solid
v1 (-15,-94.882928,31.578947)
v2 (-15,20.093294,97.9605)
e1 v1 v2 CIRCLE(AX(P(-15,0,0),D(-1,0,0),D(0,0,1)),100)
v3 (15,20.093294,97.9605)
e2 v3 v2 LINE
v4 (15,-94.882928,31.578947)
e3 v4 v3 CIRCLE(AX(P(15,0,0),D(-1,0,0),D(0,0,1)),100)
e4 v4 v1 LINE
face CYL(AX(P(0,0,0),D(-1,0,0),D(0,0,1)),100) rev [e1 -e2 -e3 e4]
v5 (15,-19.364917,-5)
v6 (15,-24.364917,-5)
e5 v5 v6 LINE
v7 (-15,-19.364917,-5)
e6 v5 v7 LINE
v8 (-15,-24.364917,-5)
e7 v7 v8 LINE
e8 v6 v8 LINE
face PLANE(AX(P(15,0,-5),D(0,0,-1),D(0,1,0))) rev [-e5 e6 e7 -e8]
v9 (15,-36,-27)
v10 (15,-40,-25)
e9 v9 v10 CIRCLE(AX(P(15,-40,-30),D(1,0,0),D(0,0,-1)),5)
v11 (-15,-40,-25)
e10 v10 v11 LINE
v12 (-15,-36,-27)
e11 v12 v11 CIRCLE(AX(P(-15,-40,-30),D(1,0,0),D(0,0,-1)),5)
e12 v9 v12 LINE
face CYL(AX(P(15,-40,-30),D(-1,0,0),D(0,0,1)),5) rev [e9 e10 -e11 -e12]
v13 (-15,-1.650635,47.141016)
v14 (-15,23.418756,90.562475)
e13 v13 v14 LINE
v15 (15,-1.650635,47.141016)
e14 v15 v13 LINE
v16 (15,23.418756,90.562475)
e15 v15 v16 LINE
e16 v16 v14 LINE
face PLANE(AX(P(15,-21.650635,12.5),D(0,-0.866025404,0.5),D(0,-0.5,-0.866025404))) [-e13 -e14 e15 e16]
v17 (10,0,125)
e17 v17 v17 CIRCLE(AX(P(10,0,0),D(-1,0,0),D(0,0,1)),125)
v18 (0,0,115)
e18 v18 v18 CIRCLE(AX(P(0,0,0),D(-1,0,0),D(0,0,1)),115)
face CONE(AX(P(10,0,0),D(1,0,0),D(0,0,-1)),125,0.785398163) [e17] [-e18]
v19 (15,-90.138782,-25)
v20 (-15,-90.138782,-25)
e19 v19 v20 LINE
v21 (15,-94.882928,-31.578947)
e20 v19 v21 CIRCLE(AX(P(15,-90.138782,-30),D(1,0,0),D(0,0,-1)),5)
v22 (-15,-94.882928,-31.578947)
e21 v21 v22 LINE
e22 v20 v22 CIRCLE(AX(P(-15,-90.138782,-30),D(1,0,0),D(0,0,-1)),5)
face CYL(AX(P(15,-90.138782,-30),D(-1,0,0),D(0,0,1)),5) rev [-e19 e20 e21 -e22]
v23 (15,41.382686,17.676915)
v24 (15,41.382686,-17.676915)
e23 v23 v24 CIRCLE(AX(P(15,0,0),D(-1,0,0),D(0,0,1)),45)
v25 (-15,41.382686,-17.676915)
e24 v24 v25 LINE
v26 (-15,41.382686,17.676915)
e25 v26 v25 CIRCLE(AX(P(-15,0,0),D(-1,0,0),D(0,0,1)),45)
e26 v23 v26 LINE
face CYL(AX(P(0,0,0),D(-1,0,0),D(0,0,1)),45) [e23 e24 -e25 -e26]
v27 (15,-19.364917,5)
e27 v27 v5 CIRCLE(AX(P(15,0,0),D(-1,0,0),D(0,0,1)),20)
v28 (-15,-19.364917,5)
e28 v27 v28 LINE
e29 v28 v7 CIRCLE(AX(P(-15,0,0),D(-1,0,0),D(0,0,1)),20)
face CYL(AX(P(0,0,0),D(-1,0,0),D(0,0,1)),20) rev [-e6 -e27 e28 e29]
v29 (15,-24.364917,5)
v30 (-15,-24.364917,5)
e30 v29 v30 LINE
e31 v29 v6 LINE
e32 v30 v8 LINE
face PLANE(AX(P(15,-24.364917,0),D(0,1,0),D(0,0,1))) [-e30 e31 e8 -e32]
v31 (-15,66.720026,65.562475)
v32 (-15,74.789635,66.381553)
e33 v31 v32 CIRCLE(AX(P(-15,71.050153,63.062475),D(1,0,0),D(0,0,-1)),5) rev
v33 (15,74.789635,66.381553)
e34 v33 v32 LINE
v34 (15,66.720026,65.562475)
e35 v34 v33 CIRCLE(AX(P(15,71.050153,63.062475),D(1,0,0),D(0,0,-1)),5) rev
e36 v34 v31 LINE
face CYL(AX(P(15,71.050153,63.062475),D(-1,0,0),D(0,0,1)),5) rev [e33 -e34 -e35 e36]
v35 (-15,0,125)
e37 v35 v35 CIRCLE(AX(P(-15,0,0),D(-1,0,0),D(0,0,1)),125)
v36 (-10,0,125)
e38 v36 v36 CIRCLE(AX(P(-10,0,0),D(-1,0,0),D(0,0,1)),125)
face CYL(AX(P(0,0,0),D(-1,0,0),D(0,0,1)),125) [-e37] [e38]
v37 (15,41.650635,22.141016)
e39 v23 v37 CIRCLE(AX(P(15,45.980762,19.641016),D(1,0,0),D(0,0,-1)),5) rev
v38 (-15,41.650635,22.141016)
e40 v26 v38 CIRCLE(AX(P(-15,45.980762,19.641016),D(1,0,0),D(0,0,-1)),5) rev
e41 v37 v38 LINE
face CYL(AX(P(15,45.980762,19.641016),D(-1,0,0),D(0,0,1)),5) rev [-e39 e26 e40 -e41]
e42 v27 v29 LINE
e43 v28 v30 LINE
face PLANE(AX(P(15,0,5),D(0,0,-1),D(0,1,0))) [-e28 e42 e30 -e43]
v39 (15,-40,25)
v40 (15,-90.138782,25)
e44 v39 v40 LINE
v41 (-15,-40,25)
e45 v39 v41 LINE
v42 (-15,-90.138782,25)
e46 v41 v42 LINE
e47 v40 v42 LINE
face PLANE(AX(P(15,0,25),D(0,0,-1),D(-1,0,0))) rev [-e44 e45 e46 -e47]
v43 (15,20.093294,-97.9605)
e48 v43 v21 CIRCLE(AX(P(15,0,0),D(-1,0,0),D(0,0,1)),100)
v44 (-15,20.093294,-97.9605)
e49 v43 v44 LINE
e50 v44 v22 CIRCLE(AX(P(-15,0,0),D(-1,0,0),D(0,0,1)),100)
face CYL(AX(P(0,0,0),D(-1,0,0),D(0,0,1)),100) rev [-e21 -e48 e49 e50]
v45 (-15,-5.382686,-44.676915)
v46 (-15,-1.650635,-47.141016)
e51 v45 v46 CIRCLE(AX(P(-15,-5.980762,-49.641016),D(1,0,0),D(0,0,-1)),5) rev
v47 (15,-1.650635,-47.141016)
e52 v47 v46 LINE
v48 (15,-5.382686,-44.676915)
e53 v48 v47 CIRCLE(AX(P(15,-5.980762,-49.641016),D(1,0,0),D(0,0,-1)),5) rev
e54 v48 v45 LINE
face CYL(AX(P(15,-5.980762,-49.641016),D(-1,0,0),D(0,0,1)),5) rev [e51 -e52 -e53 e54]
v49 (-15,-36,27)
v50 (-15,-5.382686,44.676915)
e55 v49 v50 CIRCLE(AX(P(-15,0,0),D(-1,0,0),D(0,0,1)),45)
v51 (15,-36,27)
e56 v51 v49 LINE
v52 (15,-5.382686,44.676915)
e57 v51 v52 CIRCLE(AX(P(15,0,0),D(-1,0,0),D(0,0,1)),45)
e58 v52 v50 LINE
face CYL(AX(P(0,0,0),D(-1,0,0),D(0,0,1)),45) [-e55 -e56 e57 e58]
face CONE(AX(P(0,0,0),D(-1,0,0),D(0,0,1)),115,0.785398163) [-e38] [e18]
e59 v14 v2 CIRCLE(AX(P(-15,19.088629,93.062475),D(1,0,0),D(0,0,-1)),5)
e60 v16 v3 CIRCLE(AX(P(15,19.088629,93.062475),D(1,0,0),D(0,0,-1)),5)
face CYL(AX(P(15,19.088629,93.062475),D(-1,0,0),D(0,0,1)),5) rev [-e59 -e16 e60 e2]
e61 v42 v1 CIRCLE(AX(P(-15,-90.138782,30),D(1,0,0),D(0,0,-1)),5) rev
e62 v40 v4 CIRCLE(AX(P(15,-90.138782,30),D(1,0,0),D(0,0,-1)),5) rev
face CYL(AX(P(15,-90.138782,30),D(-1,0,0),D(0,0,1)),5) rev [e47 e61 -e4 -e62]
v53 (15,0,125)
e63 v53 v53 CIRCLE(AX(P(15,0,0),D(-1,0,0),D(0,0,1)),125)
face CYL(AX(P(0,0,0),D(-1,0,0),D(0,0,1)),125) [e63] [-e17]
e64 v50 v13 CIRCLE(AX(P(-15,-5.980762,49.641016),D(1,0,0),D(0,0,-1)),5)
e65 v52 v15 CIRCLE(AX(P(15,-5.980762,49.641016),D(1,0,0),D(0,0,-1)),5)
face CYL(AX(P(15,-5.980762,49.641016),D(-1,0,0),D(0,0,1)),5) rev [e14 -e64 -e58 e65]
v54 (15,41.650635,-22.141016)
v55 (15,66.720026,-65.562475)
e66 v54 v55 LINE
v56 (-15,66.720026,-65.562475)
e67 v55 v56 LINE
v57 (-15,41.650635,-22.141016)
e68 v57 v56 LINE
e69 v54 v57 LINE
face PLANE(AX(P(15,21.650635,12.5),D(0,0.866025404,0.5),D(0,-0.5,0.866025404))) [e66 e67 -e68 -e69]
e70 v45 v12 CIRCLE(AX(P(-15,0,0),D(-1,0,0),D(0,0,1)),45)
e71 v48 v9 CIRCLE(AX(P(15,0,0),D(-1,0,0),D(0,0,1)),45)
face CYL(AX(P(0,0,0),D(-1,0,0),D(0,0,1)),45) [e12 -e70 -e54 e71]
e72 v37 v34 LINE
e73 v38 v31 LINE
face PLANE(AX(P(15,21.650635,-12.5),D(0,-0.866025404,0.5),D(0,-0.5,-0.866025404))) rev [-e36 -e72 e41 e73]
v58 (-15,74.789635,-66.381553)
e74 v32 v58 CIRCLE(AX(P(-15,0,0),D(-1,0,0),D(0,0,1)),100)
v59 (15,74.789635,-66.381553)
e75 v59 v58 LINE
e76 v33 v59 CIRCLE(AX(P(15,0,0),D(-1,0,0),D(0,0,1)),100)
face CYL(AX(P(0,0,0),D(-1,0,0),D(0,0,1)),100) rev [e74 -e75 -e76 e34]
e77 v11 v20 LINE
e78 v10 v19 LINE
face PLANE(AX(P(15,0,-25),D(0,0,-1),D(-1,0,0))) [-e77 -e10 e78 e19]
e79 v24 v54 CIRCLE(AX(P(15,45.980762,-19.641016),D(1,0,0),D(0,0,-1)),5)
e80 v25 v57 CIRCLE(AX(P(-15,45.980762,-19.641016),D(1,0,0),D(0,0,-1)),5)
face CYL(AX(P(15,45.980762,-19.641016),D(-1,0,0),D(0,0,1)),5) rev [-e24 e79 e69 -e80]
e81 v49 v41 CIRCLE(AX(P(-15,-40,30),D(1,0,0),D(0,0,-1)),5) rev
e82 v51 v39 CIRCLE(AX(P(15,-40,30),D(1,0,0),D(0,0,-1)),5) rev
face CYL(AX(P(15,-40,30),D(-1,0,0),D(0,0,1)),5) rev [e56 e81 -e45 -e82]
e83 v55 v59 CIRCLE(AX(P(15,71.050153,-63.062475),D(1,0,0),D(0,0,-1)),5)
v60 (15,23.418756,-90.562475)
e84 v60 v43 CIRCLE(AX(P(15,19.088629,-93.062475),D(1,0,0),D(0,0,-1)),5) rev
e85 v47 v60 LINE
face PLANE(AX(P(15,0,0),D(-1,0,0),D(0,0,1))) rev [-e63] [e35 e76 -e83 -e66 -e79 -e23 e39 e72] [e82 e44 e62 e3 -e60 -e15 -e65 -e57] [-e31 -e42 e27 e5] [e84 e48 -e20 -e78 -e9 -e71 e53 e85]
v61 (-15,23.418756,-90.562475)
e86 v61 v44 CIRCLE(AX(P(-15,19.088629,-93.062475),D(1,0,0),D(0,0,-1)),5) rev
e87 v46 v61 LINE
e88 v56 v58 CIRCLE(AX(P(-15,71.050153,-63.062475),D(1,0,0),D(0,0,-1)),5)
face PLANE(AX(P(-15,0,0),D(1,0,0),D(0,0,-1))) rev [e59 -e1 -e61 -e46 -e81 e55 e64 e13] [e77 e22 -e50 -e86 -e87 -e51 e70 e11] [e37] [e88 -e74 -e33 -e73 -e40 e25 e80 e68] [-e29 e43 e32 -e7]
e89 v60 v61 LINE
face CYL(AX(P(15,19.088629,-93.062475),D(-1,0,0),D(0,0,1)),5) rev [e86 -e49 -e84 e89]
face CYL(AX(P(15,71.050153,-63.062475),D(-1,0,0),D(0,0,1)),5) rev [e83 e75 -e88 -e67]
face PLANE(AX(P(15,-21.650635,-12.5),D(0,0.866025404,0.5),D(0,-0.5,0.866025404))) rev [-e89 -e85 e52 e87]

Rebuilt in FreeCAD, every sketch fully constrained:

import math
import FreeCAD as App
import Part
import Sketcher

V = App.Vector
Q = App.Units.Quantity

doc = App.newDocument("Part")
body = doc.addObject("PartDesign::Body", "Body")
body.AllowCompound = True

# Sketch on XZ plane
sketch1 = body.newObject("Sketcher::SketchObject", "Sketch")
sketch1.AttachmentSupport = (doc.getObject("XZ_Plane"), [""])
sketch1.MapMode = "FlatFace"
sketch1.addGeometry([
    Part.LineSegment(V(-15, -125, 0), V(-15, -100, 0)),  # 0
    Part.LineSegment(V(-15, -100, 0), V(15, -100, 0)),  # 1
    Part.LineSegment(V(15, -100, 0), V(15, -125, 0)),  # 2
    Part.LineSegment(V(15, -125, 0), V(10, -125, 0)),  # 3
    Part.LineSegment(V(10, -125, 0), V(0, -115, 0)),  # 4
    Part.LineSegment(V(0, -115, 0), V(-10, -125, 0)),  # 5
    Part.LineSegment(V(-10, -125, 0), V(-15, -125, 0)),  # 6
    Part.LineSegment(V(-15, -45, 0), V(-15, -20, 0)),  # 7
    Part.LineSegment(V(-15, -20, 0), V(15, -20, 0)),  # 8
    Part.LineSegment(V(15, -20, 0), V(15, -45, 0)),  # 9
    Part.LineSegment(V(15, -45, 0), V(-15, -45, 0)),  # 10
], False)
sketch1.addConstraint([
    Sketcher.Constraint("Coincident", 0, 2, 1, 1),
    Sketcher.Constraint("Coincident", 1, 2, 2, 1),
    Sketcher.Constraint("Coincident", 2, 2, 3, 1),
    Sketcher.Constraint("Coincident", 3, 2, 4, 1),
    Sketcher.Constraint("Coincident", 4, 2, 5, 1),
    Sketcher.Constraint("Coincident", 5, 2, 6, 1),
    Sketcher.Constraint("Coincident", 6, 2, 0, 1),
    Sketcher.Constraint("Coincident", 7, 2, 8, 1),
    Sketcher.Constraint("Coincident", 8, 2, 9, 1),
    Sketcher.Constraint("Coincident", 9, 2, 10, 1),
    Sketcher.Constraint("Coincident", 10, 2, 7, 1),
    Sketcher.Constraint("Vertical", 0),
    Sketcher.Constraint("Horizontal", 1),
    Sketcher.Constraint("Vertical", 2),
    Sketcher.Constraint("Horizontal", 3),
    Sketcher.Constraint("Horizontal", 6),
    Sketcher.Constraint("Vertical", 7),
    Sketcher.Constraint("Horizontal", 8),
    Sketcher.Constraint("Vertical", 9),
    Sketcher.Constraint("Horizontal", 10),
    Sketcher.Constraint("Symmetric", 3, 2, 5, 2, -2),
    Sketcher.Constraint("PointOnObject", 4, 2, -2),
    Sketcher.Constraint("Perpendicular", 4, 5),
    Sketcher.Constraint("Vertical", 6, 2, 7, 2),
    Sketcher.Constraint("Vertical", 2, 2, 8, 2),
    Sketcher.Constraint("Equal", 3, 6),
    Sketcher.Constraint("Equal", 2, 7),
    Sketcher.Constraint("DistanceX", 1, 1, 1, 2, Q("30 mm")),
    Sketcher.Constraint("DistanceX", 3, 2, 3, 1, Q("5 mm")),
    Sketcher.Constraint("DistanceY", 0, 1, 0, 2, Q("25 mm")),
    Sketcher.Constraint("DistanceY", 0, 2, -1, 1, Q("100 mm")),
    Sketcher.Constraint("DistanceY", 7, 2, -1, 1, Q("20 mm")),
])
revolution = body.newObject("PartDesign::Revolution", "Revolution")
revolution.Profile = sketch1
revolution.ReferenceAxis = (sketch1, ["H_Axis"])
revolution.Angle = 360

# Sketch on YZ plane
sketch2 = body.newObject("Sketcher::SketchObject", "Sketch001")
sketch2.AttachmentSupport = (doc.getObject("YZ_Plane"), [""])
sketch2.MapMode = "FlatFace"
sketch2.addGeometry([
    Part.LineSegment(V(-90.138782, -25, 0), V(-40, -25, 0)),  # 0
    Part.ArcOfCircle(Part.Circle(V(-40, -30, 0), V(0, 0, 1), 5), math.radians(36.869898), math.radians(90)),  # 1
    Part.ArcOfCircle(Part.Circle(V(0, 0, 0), V(0, 0, 1), 45), math.radians(143.130102), math.radians(216.869898)),  # 2
    Part.ArcOfCircle(Part.Circle(V(-40, 30, 0), V(0, 0, 1), 5), math.radians(-90), math.radians(-36.869898)),  # 3
    Part.LineSegment(V(-40, 25, 0), V(-90.138782, 25, 0)),  # 4
    Part.ArcOfCircle(Part.Circle(V(-90.138782, 30, 0), V(0, 0, 1), 5), math.radians(161.59152), math.radians(270)),  # 5
    Part.ArcOfCircle(Part.Circle(V(0, 0, 0), V(0, 0, 1), 100), math.radians(161.59152), math.radians(198.40848)),  # 6
    Part.ArcOfCircle(Part.Circle(V(-90.138782, -30, 0), V(0, 0, 1), 5), math.radians(90), math.radians(198.40848)),  # 7
    Part.ArcOfCircle(Part.Circle(V(0, 0, 0), V(0, 0, 1), 45), math.radians(-96.869898), math.radians(-23.130102)),  # 8
    Part.ArcOfCircle(Part.Circle(V(-5.980762, -49.641016, 0), V(0, 0, 1), 5), math.radians(30), math.radians(83.130102)),  # 9
    Part.LineSegment(V(-1.650635, -47.141016, 0), V(23.418756, -90.562475, 0)),  # 10
    Part.ArcOfCircle(Part.Circle(V(19.088629, -93.062475, 0), V(0, 0, 1), 5), math.radians(-78.40848), math.radians(30)),  # 11
    Part.ArcOfCircle(Part.Circle(V(0, 0, 0), V(0, 0, 1), 100), math.radians(-78.40848), math.radians(-41.59152)),  # 12
    Part.ArcOfCircle(Part.Circle(V(71.050153, -63.062475, 0), V(0, 0, 1), 5), math.radians(-150), math.radians(-41.59152)),  # 13
    Part.LineSegment(V(66.720026, -65.562475, 0), V(41.650635, -22.141016, 0)),  # 14
    Part.ArcOfCircle(Part.Circle(V(45.980762, -19.641016, 0), V(0, 0, 1), 5), math.radians(156.869898), math.radians(210)),  # 15
    Part.ArcOfCircle(Part.Circle(V(-5.980762, 49.641016, 0), V(0, 0, 1), 5), math.radians(-83.130102), math.radians(-30)),  # 16
    Part.ArcOfCircle(Part.Circle(V(0, 0, 0), V(0, 0, 1), 45), math.radians(23.130102), math.radians(96.869898)),  # 17
    Part.ArcOfCircle(Part.Circle(V(45.980762, 19.641016, 0), V(0, 0, 1), 5), math.radians(150), math.radians(203.130102)),  # 18
    Part.LineSegment(V(41.650635, 22.141016, 0), V(66.720026, 65.562475, 0)),  # 19
    Part.ArcOfCircle(Part.Circle(V(71.050153, 63.062475, 0), V(0, 0, 1), 5), math.radians(41.59152), math.radians(150)),  # 20
    Part.ArcOfCircle(Part.Circle(V(0, 0, 0), V(0, 0, 1), 100), math.radians(41.59152), math.radians(78.40848)),  # 21
    Part.ArcOfCircle(Part.Circle(V(19.088629, 93.062475, 0), V(0, 0, 1), 5), math.radians(-30), math.radians(78.40848)),  # 22
    Part.LineSegment(V(23.418756, 90.562475, 0), V(-1.650635, 47.141016, 0)),  # 23
], False)
sketch2.addConstraint([
    Sketcher.Constraint("Tangent", 0, 2, 1, 2),
    Sketcher.Constraint("Tangent", 1, 1, 2, 2),
    Sketcher.Constraint("Tangent", 2, 1, 3, 2),
    Sketcher.Constraint("Tangent", 3, 1, 4, 1),
    Sketcher.Constraint("Tangent", 4, 2, 5, 2),
    Sketcher.Constraint("Tangent", 5, 1, 6, 1),
    Sketcher.Constraint("Tangent", 6, 2, 7, 2),
    Sketcher.Constraint("Tangent", 7, 1, 0, 1),
    Sketcher.Constraint("Tangent", 8, 1, 9, 2),
    Sketcher.Constraint("Tangent", 9, 1, 10, 1),
    Sketcher.Constraint("Tangent", 10, 2, 11, 2),
    Sketcher.Constraint("Tangent", 11, 1, 12, 1),
    Sketcher.Constraint("Tangent", 12, 2, 13, 2),
    Sketcher.Constraint("Tangent", 13, 1, 14, 1),
    Sketcher.Constraint("Tangent", 14, 2, 15, 2),
    Sketcher.Constraint("Tangent", 15, 1, 8, 2),
    Sketcher.Constraint("Tangent", 16, 1, 17, 2),
    Sketcher.Constraint("Tangent", 17, 1, 18, 2),
    Sketcher.Constraint("Tangent", 18, 1, 19, 1),
    Sketcher.Constraint("Tangent", 19, 2, 20, 2),
    Sketcher.Constraint("Tangent", 20, 1, 21, 1),
    Sketcher.Constraint("Tangent", 21, 2, 22, 2),
    Sketcher.Constraint("Tangent", 22, 1, 23, 1),
    Sketcher.Constraint("Tangent", 23, 2, 16, 2),
    Sketcher.Constraint("Horizontal", 0),
    Sketcher.Constraint("Horizontal", 4),
    Sketcher.Constraint("Coincident", 2, 3, -1, 1),
    Sketcher.Constraint("Coincident", 6, 3, -1, 1),
    Sketcher.Constraint("Coincident", 8, 3, -1, 1),
    Sketcher.Constraint("Coincident", 12, 3, -1, 1),
    Sketcher.Constraint("Coincident", 17, 3, -1, 1),
    Sketcher.Constraint("Coincident", 21, 3, -1, 1),
    Sketcher.Constraint("Equal", 1, 3),
    Sketcher.Constraint("Equal", 3, 5),
    Sketcher.Constraint("Equal", 5, 7),
    Sketcher.Constraint("Equal", 2, 8),
    Sketcher.Constraint("Equal", 7, 9),
    Sketcher.Constraint("Equal", 9, 11),
    Sketcher.Constraint("Equal", 6, 12),
    Sketcher.Constraint("Equal", 11, 13),
    Sketcher.Constraint("Equal", 13, 15),
    Sketcher.Constraint("Equal", 15, 16),
    Sketcher.Constraint("Equal", 8, 17),
    Sketcher.Constraint("Equal", 16, 18),
    Sketcher.Constraint("Equal", 18, 20),
    Sketcher.Constraint("Equal", 12, 21),
    Sketcher.Constraint("Equal", 20, 22),
    Sketcher.Constraint("Symmetric", 14, 2, 18, 1, -1),
    Sketcher.Constraint("Symmetric", 10, 2, 22, 1, -1),
    Sketcher.Constraint("Parallel", 10, 14),
    Sketcher.Constraint("Vertical", 1, 3, 3, 3),
    Sketcher.Constraint("Equal", 10, 14),
    Sketcher.Constraint("Radius", 1, Q("5 mm")),
    Sketcher.Constraint("Radius", 2, Q("45 mm")),
    Sketcher.Constraint("Radius", 6, Q("100 mm")),
    Sketcher.Constraint("Angle", 10, Q("-60 deg")),
    Sketcher.Constraint("DistanceX", 1, 3, -1, 1, Q("40 mm")),
    Sketcher.Constraint("DistanceY", 11, 3, 13, 3, Q("30 mm")),
])
pad1 = body.newObject("PartDesign::Pad", "Pad")
pad1.Profile = sketch2
pad1.Length = 30
pad1.Midplane = True

# Sketch on YZ plane
sketch3 = body.newObject("Sketcher::SketchObject", "Sketch002")
sketch3.AttachmentSupport = (doc.getObject("YZ_Plane"), [""])
sketch3.MapMode = "FlatFace"
sketch3.AttachmentOffset = App.Placement(V(0, 0, -15), App.Rotation())
sketch3.addGeometry([
    Part.LineSegment(V(-24.364917, 5, 0), V(-19.364917, 5, 0)),
    Part.ArcOfCircle(Part.Circle(V(0, 0, 0), V(0, 0, 1), 20), math.radians(165.522488), math.radians(194.477512)),
    Part.LineSegment(V(-19.364917, -5, 0), V(-24.364917, -5, 0)),
    Part.LineSegment(V(-24.364917, -5, 0), V(-24.364917, 5, 0)),
], False)
sketch3.addConstraint([
    Sketcher.Constraint("Coincident", 0, 2, 1, 1),
    Sketcher.Constraint("Coincident", 1, 2, 2, 1),
    Sketcher.Constraint("Coincident", 2, 2, 3, 1),
    Sketcher.Constraint("Coincident", 3, 2, 0, 1),
    Sketcher.Constraint("Horizontal", 0),
    Sketcher.Constraint("Horizontal", 2),
    Sketcher.Constraint("Vertical", 3),
    Sketcher.Constraint("Coincident", 1, 3, -1, 1),
    Sketcher.Constraint("Vertical", 0, 2, 1, 2),
    Sketcher.Constraint("Radius", 1, Q("20 mm")),
    Sketcher.Constraint("DistanceX", 0, 1, 0, 2, Q("5 mm")),
    Sketcher.Constraint("DistanceY", 3, 1, 3, 2, Q("10 mm")),
])
pocket1 = body.newObject("PartDesign::Pocket", "Pocket")
pocket1.Profile = sketch3
pocket1.Type = "ThroughAll"
pocket1.Reversed = True

doc.recompute()
